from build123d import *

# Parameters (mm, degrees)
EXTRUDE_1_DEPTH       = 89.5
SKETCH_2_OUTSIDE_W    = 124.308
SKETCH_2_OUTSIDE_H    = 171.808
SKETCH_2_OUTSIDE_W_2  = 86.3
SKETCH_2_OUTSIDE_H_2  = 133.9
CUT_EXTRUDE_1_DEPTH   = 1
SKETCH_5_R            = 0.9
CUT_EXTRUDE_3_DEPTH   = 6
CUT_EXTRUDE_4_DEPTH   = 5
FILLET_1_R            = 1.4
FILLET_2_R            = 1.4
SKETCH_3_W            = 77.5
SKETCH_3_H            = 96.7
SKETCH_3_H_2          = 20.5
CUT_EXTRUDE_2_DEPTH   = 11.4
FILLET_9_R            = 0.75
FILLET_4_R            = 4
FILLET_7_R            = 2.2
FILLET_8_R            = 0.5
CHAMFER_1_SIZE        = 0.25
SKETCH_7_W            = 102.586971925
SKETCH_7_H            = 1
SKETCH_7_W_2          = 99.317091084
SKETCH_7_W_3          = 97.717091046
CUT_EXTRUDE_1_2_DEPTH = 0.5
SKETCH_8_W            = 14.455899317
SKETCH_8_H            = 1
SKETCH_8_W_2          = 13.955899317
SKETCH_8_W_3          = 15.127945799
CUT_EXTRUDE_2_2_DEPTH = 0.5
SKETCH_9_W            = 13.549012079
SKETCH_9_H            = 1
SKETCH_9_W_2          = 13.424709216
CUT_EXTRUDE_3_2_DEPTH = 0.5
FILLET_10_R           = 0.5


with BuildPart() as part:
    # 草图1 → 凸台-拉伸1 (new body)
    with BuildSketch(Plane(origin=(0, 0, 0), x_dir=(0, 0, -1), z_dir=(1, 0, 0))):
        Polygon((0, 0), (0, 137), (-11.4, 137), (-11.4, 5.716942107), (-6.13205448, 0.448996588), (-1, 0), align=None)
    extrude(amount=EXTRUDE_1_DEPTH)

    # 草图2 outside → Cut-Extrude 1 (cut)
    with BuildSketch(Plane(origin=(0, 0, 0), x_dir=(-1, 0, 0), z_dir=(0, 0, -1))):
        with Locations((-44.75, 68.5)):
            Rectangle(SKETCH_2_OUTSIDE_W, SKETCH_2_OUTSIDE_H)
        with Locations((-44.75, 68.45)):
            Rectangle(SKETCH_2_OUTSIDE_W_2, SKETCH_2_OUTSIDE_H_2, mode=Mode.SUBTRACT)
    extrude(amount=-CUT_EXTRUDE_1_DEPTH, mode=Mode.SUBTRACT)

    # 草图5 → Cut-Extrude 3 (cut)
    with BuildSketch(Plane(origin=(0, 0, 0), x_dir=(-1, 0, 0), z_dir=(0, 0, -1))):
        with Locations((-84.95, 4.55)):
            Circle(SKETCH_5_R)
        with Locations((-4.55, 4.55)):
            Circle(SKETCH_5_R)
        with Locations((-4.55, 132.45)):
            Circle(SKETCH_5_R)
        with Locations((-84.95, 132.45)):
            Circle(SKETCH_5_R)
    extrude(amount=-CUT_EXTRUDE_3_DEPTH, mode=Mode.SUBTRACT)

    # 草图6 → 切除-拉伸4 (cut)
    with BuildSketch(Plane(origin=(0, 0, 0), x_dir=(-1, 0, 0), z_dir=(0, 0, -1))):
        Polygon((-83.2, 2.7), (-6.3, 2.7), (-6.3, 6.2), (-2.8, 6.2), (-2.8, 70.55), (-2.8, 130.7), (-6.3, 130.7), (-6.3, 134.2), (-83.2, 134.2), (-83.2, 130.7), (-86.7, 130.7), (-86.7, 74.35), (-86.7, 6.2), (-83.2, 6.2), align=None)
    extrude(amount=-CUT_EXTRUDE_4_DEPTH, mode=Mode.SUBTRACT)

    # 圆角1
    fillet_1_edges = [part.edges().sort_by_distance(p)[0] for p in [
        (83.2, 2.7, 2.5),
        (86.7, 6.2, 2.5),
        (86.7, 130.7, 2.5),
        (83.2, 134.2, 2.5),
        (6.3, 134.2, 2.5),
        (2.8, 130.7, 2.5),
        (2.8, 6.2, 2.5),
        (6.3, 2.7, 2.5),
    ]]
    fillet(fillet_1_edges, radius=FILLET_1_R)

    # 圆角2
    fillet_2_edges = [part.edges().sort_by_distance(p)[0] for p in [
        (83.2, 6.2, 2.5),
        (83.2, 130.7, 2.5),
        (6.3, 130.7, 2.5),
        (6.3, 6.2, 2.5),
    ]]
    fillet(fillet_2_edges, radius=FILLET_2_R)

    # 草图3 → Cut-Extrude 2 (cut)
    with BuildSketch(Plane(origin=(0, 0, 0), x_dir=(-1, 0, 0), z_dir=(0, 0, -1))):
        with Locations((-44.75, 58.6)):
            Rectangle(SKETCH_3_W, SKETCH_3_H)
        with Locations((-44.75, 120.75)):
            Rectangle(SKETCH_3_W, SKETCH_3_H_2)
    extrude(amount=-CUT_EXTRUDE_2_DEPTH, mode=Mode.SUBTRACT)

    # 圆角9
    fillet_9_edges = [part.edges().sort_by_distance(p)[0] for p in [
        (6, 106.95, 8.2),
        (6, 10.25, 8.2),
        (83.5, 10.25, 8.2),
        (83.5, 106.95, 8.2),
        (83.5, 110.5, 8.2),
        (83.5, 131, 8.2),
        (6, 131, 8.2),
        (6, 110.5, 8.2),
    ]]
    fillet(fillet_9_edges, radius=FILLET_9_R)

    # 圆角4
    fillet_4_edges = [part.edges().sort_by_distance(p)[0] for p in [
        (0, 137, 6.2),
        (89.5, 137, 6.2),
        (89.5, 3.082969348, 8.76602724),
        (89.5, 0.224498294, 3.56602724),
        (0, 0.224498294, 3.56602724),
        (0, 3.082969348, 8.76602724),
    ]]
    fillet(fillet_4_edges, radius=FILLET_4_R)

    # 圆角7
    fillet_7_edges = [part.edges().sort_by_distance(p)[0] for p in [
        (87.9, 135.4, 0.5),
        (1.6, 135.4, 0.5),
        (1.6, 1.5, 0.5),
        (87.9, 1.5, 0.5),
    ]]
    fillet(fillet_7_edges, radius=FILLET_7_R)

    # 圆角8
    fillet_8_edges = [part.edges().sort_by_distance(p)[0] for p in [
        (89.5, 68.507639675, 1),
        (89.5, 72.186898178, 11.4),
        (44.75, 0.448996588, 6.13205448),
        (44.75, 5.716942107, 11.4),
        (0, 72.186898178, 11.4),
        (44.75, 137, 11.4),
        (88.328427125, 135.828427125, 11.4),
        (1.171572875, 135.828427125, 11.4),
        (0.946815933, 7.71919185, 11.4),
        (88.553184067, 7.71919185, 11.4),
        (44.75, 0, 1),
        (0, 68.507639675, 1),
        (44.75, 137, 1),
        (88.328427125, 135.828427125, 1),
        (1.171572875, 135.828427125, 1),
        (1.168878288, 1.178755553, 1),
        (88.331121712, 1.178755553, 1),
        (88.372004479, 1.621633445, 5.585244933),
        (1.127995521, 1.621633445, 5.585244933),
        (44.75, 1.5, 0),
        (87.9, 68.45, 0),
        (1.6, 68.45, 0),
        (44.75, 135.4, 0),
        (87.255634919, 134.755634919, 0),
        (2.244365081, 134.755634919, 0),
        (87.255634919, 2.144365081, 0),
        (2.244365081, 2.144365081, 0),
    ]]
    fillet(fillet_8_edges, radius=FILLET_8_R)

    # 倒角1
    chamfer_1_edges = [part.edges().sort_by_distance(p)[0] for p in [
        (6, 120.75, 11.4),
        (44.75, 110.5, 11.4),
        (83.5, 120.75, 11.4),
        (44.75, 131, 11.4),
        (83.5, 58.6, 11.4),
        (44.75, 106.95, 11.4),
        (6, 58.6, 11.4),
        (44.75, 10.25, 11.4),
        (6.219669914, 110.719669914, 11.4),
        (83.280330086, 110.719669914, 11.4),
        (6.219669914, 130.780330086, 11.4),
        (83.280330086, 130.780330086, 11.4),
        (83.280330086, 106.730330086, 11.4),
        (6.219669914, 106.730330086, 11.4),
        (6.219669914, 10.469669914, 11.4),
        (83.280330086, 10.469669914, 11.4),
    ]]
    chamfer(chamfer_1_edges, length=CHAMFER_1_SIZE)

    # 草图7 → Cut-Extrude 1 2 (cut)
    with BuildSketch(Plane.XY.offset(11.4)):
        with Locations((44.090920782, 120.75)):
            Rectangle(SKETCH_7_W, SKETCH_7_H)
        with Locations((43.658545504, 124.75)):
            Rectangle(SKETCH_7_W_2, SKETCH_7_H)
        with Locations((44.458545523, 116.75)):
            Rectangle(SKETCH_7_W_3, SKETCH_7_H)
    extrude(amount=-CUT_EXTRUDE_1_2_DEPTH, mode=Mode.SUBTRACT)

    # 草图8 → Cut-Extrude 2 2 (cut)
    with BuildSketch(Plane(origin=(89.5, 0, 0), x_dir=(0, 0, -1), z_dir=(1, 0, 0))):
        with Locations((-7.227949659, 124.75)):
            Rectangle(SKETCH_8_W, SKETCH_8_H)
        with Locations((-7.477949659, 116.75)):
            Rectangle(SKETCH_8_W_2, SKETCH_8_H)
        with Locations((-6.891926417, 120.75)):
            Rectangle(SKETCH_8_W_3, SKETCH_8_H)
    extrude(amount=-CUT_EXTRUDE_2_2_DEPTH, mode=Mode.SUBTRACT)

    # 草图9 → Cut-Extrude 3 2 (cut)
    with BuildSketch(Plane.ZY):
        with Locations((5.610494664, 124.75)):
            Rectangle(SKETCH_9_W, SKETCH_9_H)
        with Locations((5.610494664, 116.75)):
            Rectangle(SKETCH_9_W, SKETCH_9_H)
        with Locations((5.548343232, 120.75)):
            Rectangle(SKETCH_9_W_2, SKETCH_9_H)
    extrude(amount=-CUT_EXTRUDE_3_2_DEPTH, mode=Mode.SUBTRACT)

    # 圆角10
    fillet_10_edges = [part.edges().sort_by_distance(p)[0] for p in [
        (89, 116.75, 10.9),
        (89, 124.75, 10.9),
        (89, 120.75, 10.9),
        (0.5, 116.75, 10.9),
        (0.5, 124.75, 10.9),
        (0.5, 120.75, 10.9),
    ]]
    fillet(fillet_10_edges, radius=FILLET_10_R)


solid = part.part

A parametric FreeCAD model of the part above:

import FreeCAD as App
import Part
import Sketcher
Q = App.Units.Quantity


def edges_at(feature, points):
    """Names of the edges that pass closest to the given points."""
    edges = feature.Shape.Edges
    near = lambda p: min(range(len(edges)), key=lambda i: edges[i].distToShape(Part.Vertex(*p))[0])
    return sorted({f"Edge{near(p) + 1}" for p in points})


def add_polygon(sketch, points):
    """Adds a closed chain of lines whose ends are joined by coincident constraints."""
    first, n = sketch.GeometryCount, len(points)
    for a, b in zip(points, points[1:] + points[:1]):
        sketch.addGeometry(Part.LineSegment(App.Vector(*a, 0), App.Vector(*b, 0)), False)
    for i in range(n):
        sketch.addConstraint(Sketcher.Constraint("Coincident", first + i, 2, first + (i + 1) % n, 1))

doc = App.newDocument("Part")
body = doc.addObject("PartDesign::Body", "Body")

sketch1 = body.newObject("Sketcher::SketchObject", "Sketch")
sketch1.AttachmentSupport = (doc.getObject("YZ_Plane"), [""])
sketch1.MapMode = "FlatFace"
add_polygon(sketch1, [(0, 0), (137, 0), (137, 11.4), (5.7, 11.4), (0.4, 6.1), (0, 1)])
sketch1.addConstraint([
    Sketcher.Constraint("Horizontal", 0),
    Sketcher.Constraint("Vertical", 1),
    Sketcher.Constraint("Horizontal", 2),
    Sketcher.Constraint("Vertical", 5),
    Sketcher.Constraint("Coincident", 5, 2, -1, 1),
    Sketcher.Constraint("DistanceX", 0, 1, 0, 2, 137.0),
    Sketcher.Constraint("DistanceY", 5, 2, 5, 1, 1.0),
    Sketcher.Constraint("Angle", 3, Q("-135 deg")),
    Sketcher.Constraint("Angle", 4, Q("-95 deg")),
    Sketcher.Constraint("DistanceY", 1, 1, 1, 2, 11.4),
    Sketcher.Constraint("Distance", 3, 7.45),
])
pad1 = body.newObject("PartDesign::Pad", "Pad")
pad1.Profile = sketch1
pad1.Length = 89.5

sketch2 = body.newObject("Sketcher::SketchObject", "Sketch001")
sketch2.AttachmentSupport = (doc.getObject("XY_Plane"), [""])
sketch2.MapMode = "FlatFace"
add_polygon(sketch2, [(107, 154), (107, -17), (-17, -17), (-17, 154)])
add_polygon(sketch2, [(2, 2), (88, 2), (88, 135), (2, 135)])
sketch2.addConstraint([
    Sketcher.Constraint("Vertical", 0),
    Sketcher.Constraint("Horizontal", 1),
    Sketcher.Constraint("Vertical", 2),
    Sketcher.Constraint("Horizontal", 3),
    Sketcher.Constraint("Horizontal", 4),
    Sketcher.Constraint("Vertical", 5),
    Sketcher.Constraint("Horizontal", 6),
    Sketcher.Constraint("Vertical", 7),
    Sketcher.Constraint("DistanceX", 4, 1, 4, 2, 86.3),
    Sketcher.Constraint("DistanceY", 5, 1, 5, 2, 133.9),
    Sketcher.Constraint("DistanceX", -1, 1, 4, 2, 87.9),
    Sketcher.Constraint("DistanceY", -1, 1, 4, 2, 1.5),
    Sketcher.Constraint("DistanceX", 1, 2, 1, 1, 124.308),
    Sketcher.Constraint("DistanceY", 0, 2, 0, 1, 171.808),
    Sketcher.Constraint("DistanceX", -1, 1, 0, 2, 106.904),
    Sketcher.Constraint("DistanceY", 0, 2, -1, 1, 17.404),
])
pocket1 = body.newObject("PartDesign::Pocket", "Pocket")
pocket1.Profile = sketch2
pocket1.Length = 1
pocket1.Reversed = True

sketch3 = body.newObject("Sketcher::SketchObject", "Sketch002")
sketch3.AttachmentSupport = (doc.getObject("XY_Plane"), [""])
sketch3.MapMode = "FlatFace"
sketch3.addGeometry([
    Part.Circle(App.Vector(85, 4.5, 0), App.Vector(0, 0, 1), 0.9),
    Part.Circle(App.Vector(4.5, 4.5, 0), App.Vector(0, 0, 1), 0.9),
    Part.Circle(App.Vector(4.5, 132.4, 0), App.Vector(0, 0, 1), 0.9),
    Part.Circle(App.Vector(85, 132.4, 0), App.Vector(0, 0, 1), 0.9),
], False)
sketch3.addConstraint([
    Sketcher.Constraint("Equal", 0, 1),
    Sketcher.Constraint("Equal", 1, 2),
    Sketcher.Constraint("Equal", 2, 3),
    Sketcher.Constraint("Horizontal", 0, 3, 1, 3),
    Sketcher.Constraint("Horizontal", 2, 3, 3, 3),
    Sketcher.Constraint("Vertical", 1, 3, 2, 3),
    Sketcher.Constraint("Vertical", 0, 3, 3, 3),
    Sketcher.Constraint("Diameter", 0, 1.8),
    Sketcher.Constraint("DistanceX", 1, 3, 0, 3, 80.4),
    Sketcher.Constraint("DistanceY", 1, 3, 2, 3, 127.9),
    Sketcher.Constraint("DistanceX", -1, 1, 0, 3, 84.95),
    Sketcher.Constraint("DistanceY", -1, 1, 0, 3, 4.55),
])
pocket2 = body.newObject("PartDesign::Pocket", "Pocket001")
pocket2.Profile = sketch3
pocket2.Length = 6
pocket2.Reversed = True

sketch4 = body.newObject("Sketcher::SketchObject", "Sketch003")
sketch4.AttachmentSupport = (doc.getObject("XY_Plane"), [""])
sketch4.MapMode = "FlatFace"
add_polygon(sketch4, [(83.2, 2.7), (6.3, 2.7), (6.3, 6.2), (2.8, 6.2), (2.8, 130.7), (6.3, 130.7), (6.3, 134.2), (83.2, 134.2), (83.2, 130.7), (86.7, 130.7), (86.7, 6.2), (83.2, 6.2)])
sketch4.addConstraint([
    Sketcher.Constraint("Horizontal", 0),
    Sketcher.Constraint("Vertical", 1),
    Sketcher.Constraint("Horizontal", 2),
    Sketcher.Constraint("Vertical", 3),
    Sketcher.Constraint("Horizontal", 4),
    Sketcher.Constraint("Vertical", 5),
    Sketcher.Constraint("Horizontal", 6),
    Sketcher.Constraint("Vertical", 7),
    Sketcher.Constraint("Horizontal", 8),
    Sketcher.Constraint("Vertical", 9),
    Sketcher.Constraint("Horizontal", 10),
    Sketcher.Constraint("Vertical", 11),
    Sketcher.Constraint("Horizontal", 4, 2, 7, 2),
    Sketcher.Constraint("Horizontal", 2, 2, 9, 2),
    Sketcher.Constraint("Vertical", 1, 2, 4, 2),
    Sketcher.Constraint("Vertical", 7, 2, 10, 2),
    Sketcher.Constraint("Equal", 4, 8),
    Sketcher.Constraint("Equal", 10, 1),
    Sketcher.Constraint("Equal", 1, 5),
    Sketcher.Constraint("DistanceX", 0, 2, 0, 1, 76.9),
    Sketcher.Constraint("DistanceX", 2, 2, 2, 1, 3.5),
    Sketcher.Constraint("DistanceY", 3, 1, 3, 2, 124.5),
    Sketcher.Constraint("DistanceX", -1, 1, 0, 2, 6.3),
    Sketcher.Constraint("DistanceY", -1, 1, 0, 2, 2.7),
])
pocket3 = body.newObject("PartDesign::Pocket", "Pocket002")
pocket3.Profile = sketch4
pocket3.Length = 5
pocket3.Reversed = True
doc.recompute()

fillet = body.newObject("PartDesign::Fillet", "Fillet")
fillet.Base = (pocket3, edges_at(pocket3, [
    (83.2, 2.7, 2.5),
    (86.7, 6.2, 2.5),
    (86.7, 130.7, 2.5),
    (83.2, 134.2, 2.5),
    (6.3, 134.2, 2.5),
    (2.8, 130.7, 2.5),
    (2.8, 6.2, 2.5),
    (6.3, 2.7, 2.5),
]))
fillet.Radius = 1.4
doc.recompute()

fillet2 = body.newObject("PartDesign::Fillet", "Fillet001")
fillet2.Base = (fillet, edges_at(fillet, [
    (83.2, 6.2, 2.5),
    (83.2, 130.7, 2.5),
    (6.3, 130.7, 2.5),
    (6.3, 6.2, 2.5),
]))
fillet2.Radius = 1.4

sketch5 = body.newObject("Sketcher::SketchObject", "Sketch004")
sketch5.AttachmentSupport = (doc.getObject("XY_Plane"), [""])
sketch5.MapMode = "FlatFace"
add_polygon(sketch5, [(84, 107), (84, 10), (6, 10), (6, 107)])
add_polygon(sketch5, [(84, 131), (84, 110), (6, 110), (6, 131)])
sketch5.addConstraint([
    Sketcher.Constraint("Vertical", 0),
    Sketcher.Constraint("Horizontal", 1),
    Sketcher.Constraint("Vertical", 2),
    Sketcher.Constraint("Horizontal", 3),
    Sketcher.Constraint("Vertical", 4),
    Sketcher.Constraint("Horizontal", 5),
    Sketcher.Constraint("Vertical", 6),
    Sketcher.Constraint("Horizontal", 7),
    Sketcher.Constraint("Vertical", 3, 2, 4, 2),
    Sketcher.Constraint("Vertical", 2, 2, 5, 2),
    Sketcher.Constraint("DistanceX", 1, 2, 1, 1, 77.5),
    Sketcher.Constraint("DistanceY", 0, 2, 0, 1, 96.7),
    Sketcher.Constraint("DistanceY", 4, 2, 4, 1, 20.5),
    Sketcher.Constraint("DistanceX", -1, 1, 1, 2, 6.0),
    Sketcher.Constraint("DistanceY", -1, 1, 6, 2, 131.0),
    Sketcher.Constraint("DistanceY", -1, 1, 0, 2, 10.25),
])
pocket4 = body.newObject("PartDesign::Pocket", "Pocket003")
pocket4.Profile = sketch5
pocket4.Length = 11.4
pocket4.Reversed = True
doc.recompute()

fillet3 = body.newObject("PartDesign::Fillet", "Fillet002")
fillet3.Base = (pocket4, edges_at(pocket4, [
    (6, 106.95, 8.2),
    (6, 10.25, 8.2),
    (83.5, 10.25, 8.2),
    (83.5, 106.95, 8.2),
    (83.5, 110.5, 8.2),
    (83.5, 131, 8.2),
    (6, 131, 8.2),
    (6, 110.5, 8.2),
]))
fillet3.Radius = 0.75
doc.recompute()

fillet4 = body.newObject("PartDesign::Fillet", "Fillet003")
fillet4.Base = (fillet3, edges_at(fillet3, [
    (0, 137, 6.2),
    (89.5, 137, 6.2),
    (89.5, 3.083, 8.766),
    (89.5, 0.224, 3.566),
    (0, 0.224, 3.566),
    (0, 3.083, 8.766),
]))
fillet4.Radius = 4
doc.recompute()

fillet5 = body.newObject("PartDesign::Fillet", "Fillet004")
fillet5.Base = (fillet4, edges_at(fillet4, [
    (87.9, 135.4, 0.5),
    (1.6, 135.4, 0.5),
    (1.6, 1.5, 0.5),
    (87.9, 1.5, 0.5),
]))
fillet5.Radius = 2.2
doc.recompute()

fillet6 = body.newObject("PartDesign::Fillet", "Fillet005")
fillet6.Base = (fillet5, edges_at(fillet5, [
    (89.5, 68.508, 1),
    (89.5, 72.187, 11.4),
    (44.75, 0.449, 6.132),
    (44.75, 5.717, 11.4),
    (0, 72.187, 11.4),
    (44.75, 137, 11.4),
    (88.328, 135.828, 11.4),
    (1.172, 135.828, 11.4),
    (0.947, 7.719, 11.4),
    (88.553, 7.719, 11.4),
    (44.75, 0, 1),
    (0, 68.508, 1),
    (44.75, 137, 1),
    (88.328, 135.828, 1),
    (1.172, 135.828, 1),
    (1.169, 1.179, 1),
    (88.331, 1.179, 1),
    (88.372, 1.622, 5.585),
    (1.128, 1.622, 5.585),
    (44.75, 1.5, 0),
    (87.9, 68.45, 0),
    (1.6, 68.45, 0),
    (44.75, 135.4, 0),
    (87.256, 134.756, 0),
    (2.244, 134.756, 0),
    (87.256, 2.144, 0),
    (2.244, 2.144, 0),
]))
fillet6.Radius = 0.5
doc.recompute()

chamfer = body.newObject("PartDesign::Chamfer", "Chamfer")
chamfer.Base = (fillet6, edges_at(fillet6, [
    (6, 120.75, 11.4),
    (44.75, 110.5, 11.4),
    (83.5, 120.75, 11.4),
    (44.75, 131, 11.4),
    (83.5, 58.6, 11.4),
    (44.75, 106.95, 11.4),
    (6, 58.6, 11.4),
    (44.75, 10.25, 11.4),
    (6.22, 110.72, 11.4),
    (83.28, 110.72, 11.4),
    (6.22, 130.78, 11.4),
    (83.28, 130.78, 11.4),
    (83.28, 106.73, 11.4),
    (6.22, 106.73, 11.4),
    (6.22, 10.47, 11.4),
    (83.28, 10.47, 11.4),
]))
chamfer.Size = 0.25

sketch6 = body.newObject("Sketcher::SketchObject", "Sketch005")
sketch6.AttachmentSupport = (doc.getObject("XY_Plane"), [""])
sketch6.MapMode = "FlatFace"
sketch6.AttachmentOffset = App.Placement(App.Vector(0, 0, 11.4), App.Rotation())
add_polygon(sketch6, [(-7.2, 121.2), (-7.2, 120.2), (95.4, 120.2), (95.4, 121.2)])
add_polygon(sketch6, [(-6, 125.2), (-6, 124.2), (93.3, 124.2), (93.3, 125.2)])
add_polygon(sketch6, [(-4.4, 117.2), (-4.4, 116.2), (93.3, 116.2), (93.3, 117.2)])
sketch6.addConstraint([
    Sketcher.Constraint("Vertical", 0),
    Sketcher.Constraint("Horizontal", 1),
    Sketcher.Constraint("Vertical", 2),
    Sketcher.Constraint("Horizontal", 3),
    Sketcher.Constraint("Vertical", 4),
    Sketcher.Constraint("Horizontal", 5),
    Sketcher.Constraint("Vertical", 6),
    Sketcher.Constraint("Horizontal", 7),
    Sketcher.Constraint("Vertical", 8),
    Sketcher.Constraint("Horizontal", 9),
    Sketcher.Constraint("Vertical", 10),
    Sketcher.Constraint("Horizontal", 11),
    Sketcher.Constraint("Vertical", 6, 2, 9, 2),
    Sketcher.Constraint("Equal", 2, 4),
    Sketcher.Constraint("Equal", 6, 8),
    Sketcher.Constraint("DistanceY", 0, 2, 0, 1, 1.0),
    Sketcher.Constraint("DistanceX", 4, 2, -1, 1, 6.0),
    Sketcher.Constraint("DistanceY", 3, 2, 4, 2, 3.0),
    Sketcher.Constraint("DistanceY", 8, 2, 0, 2, 4.0),
    Sketcher.Constraint("DistanceX", 8, 2, -1, 1, 4.4),
    Sketcher.Constraint("DistanceY", -1, 1, 0, 2, 120.25),
    Sketcher.Constraint("DistanceX", 1, 1, 1, 2, 102.586972),
    Sketcher.Constraint("DistanceX", 5, 1, 5, 2, 99.317091),
    Sketcher.Constraint("DistanceX", 0, 2, -1, 1, 7.202565),
])
pocket5 = body.newObject("PartDesign::Pocket", "Pocket004")
pocket5.Profile = sketch6
pocket5.Length = 0.5

sketch7 = body.newObject("Sketcher::SketchObject", "Sketch006")
sketch7.AttachmentSupport = (doc.getObject("YZ_Plane"), [""])
sketch7.MapMode = "FlatFace"
sketch7.AttachmentOffset = App.Placement(App.Vector(0, 0, 89.5), App.Rotation())
add_polygon(sketch7, [(125.2, 14.5), (124.2, 14.5), (124.2, 0), (125.2, 0)])
add_polygon(sketch7, [(117.2, 14.5), (116.2, 14.5), (116.2, 0.5), (117.2, 0.5)])
add_polygon(sketch7, [(121.2, 14.5), (120.2, 14.5), (120.2, -0.7), (121.2, -0.7)])
sketch7.addConstraint([
    Sketcher.Constraint("Horizontal", 0),
    Sketcher.Constraint("Vertical", 1),
    Sketcher.Constraint("Horizontal", 2),
    Sketcher.Constraint("Vertical", 3),
    Sketcher.Constraint("Horizontal", 4),
    Sketcher.Constraint("Vertical", 5),
    Sketcher.Constraint("Horizontal", 6),
    Sketcher.Constraint("Vertical", 7),
    Sketcher.Constraint("Horizontal", 8),
    Sketcher.Constraint("Vertical", 9),
    Sketcher.Constraint("Horizontal", 10),
    Sketcher.Constraint("Vertical", 11),
    Sketcher.Constraint("PointOnObject", 1, 2, -1),
    Sketcher.Constraint("Horizontal", 3, 2, 4, 2),
    Sketcher.Constraint("Horizontal", 7, 2, 8, 2),
    Sketcher.Constraint("Equal", 2, 4),
    Sketcher.Constraint("Equal", 6, 8),
    Sketcher.Constraint("DistanceX", 0, 2, 0, 1, 1.0),
    Sketcher.Constraint("DistanceX", 4, 2, 0, 2, 8.0),
    Sketcher.Constraint("DistanceX", 7, 2, 8, 2, 3.0),
    Sketcher.Constraint("DistanceY", -1, 1, 5, 2, 0.5),
    Sketcher.Constraint("DistanceX", -1, 1, 0, 2, 124.25),
    Sketcher.Constraint("DistanceY", 1, 2, 1, 1, 14.455899),
    Sketcher.Constraint("DistanceY", 9, 2, 9, 1, 15.127946),
])
pocket6 = body.newObject("PartDesign::Pocket", "Pocket005")
pocket6.Profile = sketch7
pocket6.Length = 0.5

sketch8 = body.newObject("Sketcher::SketchObject", "Sketch007")
sketch8.AttachmentSupport = (doc.getObject("YZ_Plane"), [""])
sketch8.MapMode = "FlatFace"
add_polygon(sketch8, [(125.2, -1.2), (124.2, -1.2), (124.2, 12.4), (125.2, 12.4)])
add_polygon(sketch8, [(117.2, -1.2), (116.2, -1.2), (116.2, 12.4), (117.2, 12.4)])
add_polygon(sketch8, [(121.2, -1.2), (120.2, -1.2), (120.2, 12.3), (121.2, 12.3)])
sketch8.addConstraint([
    Sketcher.Constraint("Horizontal", 0),
    Sketcher.Constraint("Vertical", 1),
    Sketcher.Constraint("Horizontal", 2),
    Sketcher.Constraint("Vertical", 3),
    Sketcher.Constraint("Horizontal", 4),
    Sketcher.Constraint("Vertical", 5),
    Sketcher.Constraint("Horizontal", 6),
    Sketcher.Constraint("Vertical", 7),
    Sketcher.Constraint("Horizontal", 8),
    Sketcher.Constraint("Vertical", 9),
    Sketcher.Constraint("Horizontal", 10),
    Sketcher.Constraint("Vertical", 11),
    Sketcher.Constraint("Horizontal", 3, 2, 4, 2),
    Sketcher.Constraint("Horizontal", 2, 2, 5, 2),
    Sketcher.Constraint("Horizontal", 7, 2, 8, 2),
    Sketcher.Constraint("Equal", 2, 4),
    Sketcher.Constraint("Equal", 6, 8),
    Sketcher.Constraint("DistanceX", 0, 2, 0, 1, 1.0),
    Sketcher.Constraint("DistanceX", 4, 2, 0, 2, 8.0),
    Sketcher.Constraint("DistanceX", 7, 2, 8, 2, 3.0),
    Sketcher.Constraint("DistanceX", -1, 1, 0, 2, 124.25),
    Sketcher.Constraint("DistanceY", -1, 1, 1, 2, 12.385001),
    Sketcher.Constraint("DistanceY", 9, 1, 9, 2, 13.424709),
    Sketcher.Constraint("DistanceY", 1, 1, 1, 2, 13.549012),
])
pocket7 = body.newObject("PartDesign::Pocket", "Pocket006")
pocket7.Profile = sketch8
pocket7.Length = 0.5
pocket7.Reversed = True
doc.recompute()

fillet7 = body.newObject("PartDesign::Fillet", "Fillet006")
fillet7.Base = (pocket7, edges_at(pocket7, [
    (89, 116.75, 10.9),
    (89, 124.75, 10.9),
    (89, 120.75, 10.9),
    (0.5, 116.75, 10.9),
    (0.5, 124.75, 10.9),
    (0.5, 120.75, 10.9),
]))
fillet7.Radius = 0.5

doc.recompute()
